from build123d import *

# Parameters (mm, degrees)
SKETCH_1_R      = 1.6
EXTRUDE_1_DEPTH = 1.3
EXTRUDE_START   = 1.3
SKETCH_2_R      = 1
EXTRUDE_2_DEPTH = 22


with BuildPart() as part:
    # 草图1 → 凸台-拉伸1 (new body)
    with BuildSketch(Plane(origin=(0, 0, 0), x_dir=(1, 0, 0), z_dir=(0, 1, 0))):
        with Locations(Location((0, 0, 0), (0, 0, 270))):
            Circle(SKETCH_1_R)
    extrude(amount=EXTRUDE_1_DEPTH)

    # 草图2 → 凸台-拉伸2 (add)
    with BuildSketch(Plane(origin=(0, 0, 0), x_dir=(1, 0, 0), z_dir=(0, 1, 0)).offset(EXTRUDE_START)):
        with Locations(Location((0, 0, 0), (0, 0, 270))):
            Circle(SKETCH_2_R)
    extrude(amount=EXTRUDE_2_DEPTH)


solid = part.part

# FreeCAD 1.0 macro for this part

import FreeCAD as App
import Part
import Sketcher
Q = App.Units.Quantity

doc = App.newDocument("Part")
body = doc.addObject("PartDesign::Body", "Body")

# Sketch on XZ plane
sketch1 = body.newObject("Sketcher::SketchObject", "Sketch")
sketch1.AttachmentSupport = (doc.getObject("XZ_Plane"), [""])
sketch1.MapMode = "FlatFace"
sketch1.addGeometry(Part.Circle(App.Vector(0, 0, 0), App.Vector(0, 0, 1), 1.6), False)
sketch1.addConstraint([
    Sketcher.Constraint("Coincident", 0, 3, -1, 1),
    Sketcher.Constraint("Diameter", 0, Q("3.2 mm")),
])
pad1 = body.newObject("PartDesign::Pad", "Pad")
pad1.Profile = sketch1
pad1.Length = 1.3
pad1.Reversed = True

# Sketch on XZ plane
sketch2 = body.newObject("Sketcher::SketchObject", "Sketch001")
sketch2.AttachmentSupport = (doc.getObject("XZ_Plane"), [""])
sketch2.MapMode = "FlatFace"
sketch2.AttachmentOffset = App.Placement(App.Vector(0, 0, -1.3), App.Rotation())
sketch2.addGeometry(Part.Circle(App.Vector(0, 0, 0), App.Vector(0, 0, 1), 1), False)
sketch2.addConstraint([
    Sketcher.Constraint("Coincident", 0, 3, -1, 1),
    Sketcher.Constraint("Diameter", 0, Q("2 mm")),
])
pad2 = body.newObject("PartDesign::Pad", "Pad001")
pad2.Profile = sketch2
pad2.Length = 22
pad2.Reversed = True

doc.recompute()
